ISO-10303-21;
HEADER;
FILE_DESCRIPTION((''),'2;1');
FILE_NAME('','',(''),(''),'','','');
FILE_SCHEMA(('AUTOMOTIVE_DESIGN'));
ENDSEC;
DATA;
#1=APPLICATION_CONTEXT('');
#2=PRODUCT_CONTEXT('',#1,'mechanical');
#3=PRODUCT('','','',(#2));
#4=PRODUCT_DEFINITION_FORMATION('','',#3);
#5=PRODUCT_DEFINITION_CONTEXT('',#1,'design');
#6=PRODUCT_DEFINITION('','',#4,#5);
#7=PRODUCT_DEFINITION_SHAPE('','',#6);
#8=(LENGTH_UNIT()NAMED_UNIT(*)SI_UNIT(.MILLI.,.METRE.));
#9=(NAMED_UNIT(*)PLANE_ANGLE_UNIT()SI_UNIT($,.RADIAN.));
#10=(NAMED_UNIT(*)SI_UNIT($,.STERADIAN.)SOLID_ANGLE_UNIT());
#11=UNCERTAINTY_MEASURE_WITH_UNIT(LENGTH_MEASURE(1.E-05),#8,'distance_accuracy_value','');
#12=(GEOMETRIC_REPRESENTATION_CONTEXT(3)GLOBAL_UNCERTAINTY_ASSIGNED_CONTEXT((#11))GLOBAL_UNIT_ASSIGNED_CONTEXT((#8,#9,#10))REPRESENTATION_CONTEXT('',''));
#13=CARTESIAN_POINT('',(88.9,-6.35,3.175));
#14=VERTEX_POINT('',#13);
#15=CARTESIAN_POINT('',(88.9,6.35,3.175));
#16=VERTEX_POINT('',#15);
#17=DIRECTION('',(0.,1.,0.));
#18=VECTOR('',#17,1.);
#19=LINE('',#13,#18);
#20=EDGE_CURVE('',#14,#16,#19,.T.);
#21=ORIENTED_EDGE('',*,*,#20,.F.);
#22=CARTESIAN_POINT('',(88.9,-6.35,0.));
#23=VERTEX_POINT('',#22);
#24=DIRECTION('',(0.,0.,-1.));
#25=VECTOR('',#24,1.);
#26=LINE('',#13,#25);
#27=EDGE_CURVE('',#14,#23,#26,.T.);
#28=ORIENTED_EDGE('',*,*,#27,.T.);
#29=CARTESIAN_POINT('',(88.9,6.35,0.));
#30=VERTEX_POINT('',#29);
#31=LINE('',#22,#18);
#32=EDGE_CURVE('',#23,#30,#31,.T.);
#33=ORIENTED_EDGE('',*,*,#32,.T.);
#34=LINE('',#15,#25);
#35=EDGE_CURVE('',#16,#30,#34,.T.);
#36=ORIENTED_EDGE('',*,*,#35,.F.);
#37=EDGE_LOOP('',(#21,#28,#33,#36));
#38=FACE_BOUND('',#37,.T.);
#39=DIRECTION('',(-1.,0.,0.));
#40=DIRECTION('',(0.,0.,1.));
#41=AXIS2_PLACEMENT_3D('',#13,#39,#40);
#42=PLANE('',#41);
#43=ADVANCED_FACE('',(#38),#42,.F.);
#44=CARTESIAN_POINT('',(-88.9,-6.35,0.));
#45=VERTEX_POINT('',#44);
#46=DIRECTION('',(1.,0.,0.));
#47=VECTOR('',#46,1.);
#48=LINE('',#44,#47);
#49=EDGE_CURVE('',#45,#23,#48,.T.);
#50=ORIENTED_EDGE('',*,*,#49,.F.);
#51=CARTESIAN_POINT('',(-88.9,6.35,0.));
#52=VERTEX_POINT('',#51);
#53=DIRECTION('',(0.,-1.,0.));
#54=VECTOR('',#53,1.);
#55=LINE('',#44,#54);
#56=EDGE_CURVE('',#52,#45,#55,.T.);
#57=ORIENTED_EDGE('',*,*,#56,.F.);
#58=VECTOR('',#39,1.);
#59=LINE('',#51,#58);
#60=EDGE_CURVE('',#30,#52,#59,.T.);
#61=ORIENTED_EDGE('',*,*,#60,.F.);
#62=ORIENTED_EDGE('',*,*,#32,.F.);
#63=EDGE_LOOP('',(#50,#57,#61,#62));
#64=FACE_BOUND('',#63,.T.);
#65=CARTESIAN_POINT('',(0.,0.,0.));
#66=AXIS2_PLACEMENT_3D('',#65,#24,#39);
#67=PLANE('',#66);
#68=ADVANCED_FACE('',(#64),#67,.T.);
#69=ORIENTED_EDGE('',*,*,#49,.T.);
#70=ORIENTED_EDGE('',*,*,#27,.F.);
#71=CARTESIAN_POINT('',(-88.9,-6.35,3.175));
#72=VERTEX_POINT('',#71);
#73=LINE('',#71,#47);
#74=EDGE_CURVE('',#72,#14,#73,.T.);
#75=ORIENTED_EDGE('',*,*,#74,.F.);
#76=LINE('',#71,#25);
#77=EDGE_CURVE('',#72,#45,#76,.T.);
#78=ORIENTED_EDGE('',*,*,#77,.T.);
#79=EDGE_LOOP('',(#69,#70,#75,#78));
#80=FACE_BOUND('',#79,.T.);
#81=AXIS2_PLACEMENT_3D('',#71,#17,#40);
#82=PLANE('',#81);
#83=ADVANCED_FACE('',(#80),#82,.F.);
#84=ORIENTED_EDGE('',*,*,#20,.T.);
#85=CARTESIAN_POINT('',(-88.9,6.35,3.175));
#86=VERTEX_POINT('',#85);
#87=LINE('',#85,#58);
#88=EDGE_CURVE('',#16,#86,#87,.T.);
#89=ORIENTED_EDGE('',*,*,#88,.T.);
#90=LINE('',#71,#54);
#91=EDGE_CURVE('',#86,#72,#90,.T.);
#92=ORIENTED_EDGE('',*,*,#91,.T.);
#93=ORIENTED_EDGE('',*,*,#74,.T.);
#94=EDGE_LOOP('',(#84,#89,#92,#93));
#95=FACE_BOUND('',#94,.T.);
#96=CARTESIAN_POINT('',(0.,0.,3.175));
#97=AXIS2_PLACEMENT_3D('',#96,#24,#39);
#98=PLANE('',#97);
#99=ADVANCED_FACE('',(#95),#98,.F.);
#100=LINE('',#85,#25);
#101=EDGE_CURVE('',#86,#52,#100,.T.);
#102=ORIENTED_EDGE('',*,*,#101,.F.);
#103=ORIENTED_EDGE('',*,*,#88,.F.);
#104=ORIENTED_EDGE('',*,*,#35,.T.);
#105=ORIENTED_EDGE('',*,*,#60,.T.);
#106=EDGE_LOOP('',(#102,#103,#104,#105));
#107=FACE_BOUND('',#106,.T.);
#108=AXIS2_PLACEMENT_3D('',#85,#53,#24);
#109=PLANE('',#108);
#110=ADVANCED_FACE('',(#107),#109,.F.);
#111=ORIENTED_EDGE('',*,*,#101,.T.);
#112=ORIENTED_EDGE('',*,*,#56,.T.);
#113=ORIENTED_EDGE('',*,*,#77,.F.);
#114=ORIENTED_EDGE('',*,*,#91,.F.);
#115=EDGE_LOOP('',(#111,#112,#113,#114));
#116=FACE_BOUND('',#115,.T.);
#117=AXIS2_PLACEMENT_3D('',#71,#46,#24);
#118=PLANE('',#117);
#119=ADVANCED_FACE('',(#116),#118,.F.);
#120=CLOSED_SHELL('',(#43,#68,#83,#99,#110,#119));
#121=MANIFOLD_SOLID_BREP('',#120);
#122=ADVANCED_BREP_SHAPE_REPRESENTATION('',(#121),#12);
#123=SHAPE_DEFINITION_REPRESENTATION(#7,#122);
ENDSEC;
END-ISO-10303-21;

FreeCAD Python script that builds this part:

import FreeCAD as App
import Part
import Sketcher
Q = App.Units.Quantity


def add_polygon(sketch, points):
    """Adds a closed chain of lines whose ends are joined by coincident constraints."""
    first, n = sketch.GeometryCount, len(points)
    for a, b in zip(points, points[1:] + points[:1]):
        sketch.addGeometry(Part.LineSegment(App.Vector(*a, 0), App.Vector(*b, 0)), False)
    for i in range(n):
        sketch.addConstraint(Sketcher.Constraint("Coincident", first + i, 2, first + (i + 1) % n, 1))

doc = App.newDocument("Part")
body = doc.addObject("PartDesign::Body", "Body")

# Sketch on XY plane
sketch1 = body.newObject("Sketcher::SketchObject", "Sketch")
sketch1.AttachmentSupport = (doc.getObject("XY_Plane"), [""])
sketch1.MapMode = "FlatFace"
add_polygon(sketch1, [(-88.9, 6.35), (-88.9, -6.35), (88.9, -6.35), (88.9, 6.35)])  # lines 0-3
sketch1.addConstraint([
    Sketcher.Constraint("Vertical", 0),
    Sketcher.Constraint("Horizontal", 1),
    Sketcher.Constraint("Vertical", 2),
    Sketcher.Constraint("Horizontal", 3),
    Sketcher.Constraint("Symmetric", 0, 2, 2, 2, -1, 1),
    Sketcher.Constraint("DistanceX", 1, 1, 1, 2, Q("7 in")),
    Sketcher.Constraint("DistanceY", 0, 2, 0, 1, Q("0.5 in")),
])
pad1 = body.newObject("PartDesign::Pad", "Pad")
pad1.Profile = sketch1
pad1.Length = Q("0.125 in")

doc.recompute()
